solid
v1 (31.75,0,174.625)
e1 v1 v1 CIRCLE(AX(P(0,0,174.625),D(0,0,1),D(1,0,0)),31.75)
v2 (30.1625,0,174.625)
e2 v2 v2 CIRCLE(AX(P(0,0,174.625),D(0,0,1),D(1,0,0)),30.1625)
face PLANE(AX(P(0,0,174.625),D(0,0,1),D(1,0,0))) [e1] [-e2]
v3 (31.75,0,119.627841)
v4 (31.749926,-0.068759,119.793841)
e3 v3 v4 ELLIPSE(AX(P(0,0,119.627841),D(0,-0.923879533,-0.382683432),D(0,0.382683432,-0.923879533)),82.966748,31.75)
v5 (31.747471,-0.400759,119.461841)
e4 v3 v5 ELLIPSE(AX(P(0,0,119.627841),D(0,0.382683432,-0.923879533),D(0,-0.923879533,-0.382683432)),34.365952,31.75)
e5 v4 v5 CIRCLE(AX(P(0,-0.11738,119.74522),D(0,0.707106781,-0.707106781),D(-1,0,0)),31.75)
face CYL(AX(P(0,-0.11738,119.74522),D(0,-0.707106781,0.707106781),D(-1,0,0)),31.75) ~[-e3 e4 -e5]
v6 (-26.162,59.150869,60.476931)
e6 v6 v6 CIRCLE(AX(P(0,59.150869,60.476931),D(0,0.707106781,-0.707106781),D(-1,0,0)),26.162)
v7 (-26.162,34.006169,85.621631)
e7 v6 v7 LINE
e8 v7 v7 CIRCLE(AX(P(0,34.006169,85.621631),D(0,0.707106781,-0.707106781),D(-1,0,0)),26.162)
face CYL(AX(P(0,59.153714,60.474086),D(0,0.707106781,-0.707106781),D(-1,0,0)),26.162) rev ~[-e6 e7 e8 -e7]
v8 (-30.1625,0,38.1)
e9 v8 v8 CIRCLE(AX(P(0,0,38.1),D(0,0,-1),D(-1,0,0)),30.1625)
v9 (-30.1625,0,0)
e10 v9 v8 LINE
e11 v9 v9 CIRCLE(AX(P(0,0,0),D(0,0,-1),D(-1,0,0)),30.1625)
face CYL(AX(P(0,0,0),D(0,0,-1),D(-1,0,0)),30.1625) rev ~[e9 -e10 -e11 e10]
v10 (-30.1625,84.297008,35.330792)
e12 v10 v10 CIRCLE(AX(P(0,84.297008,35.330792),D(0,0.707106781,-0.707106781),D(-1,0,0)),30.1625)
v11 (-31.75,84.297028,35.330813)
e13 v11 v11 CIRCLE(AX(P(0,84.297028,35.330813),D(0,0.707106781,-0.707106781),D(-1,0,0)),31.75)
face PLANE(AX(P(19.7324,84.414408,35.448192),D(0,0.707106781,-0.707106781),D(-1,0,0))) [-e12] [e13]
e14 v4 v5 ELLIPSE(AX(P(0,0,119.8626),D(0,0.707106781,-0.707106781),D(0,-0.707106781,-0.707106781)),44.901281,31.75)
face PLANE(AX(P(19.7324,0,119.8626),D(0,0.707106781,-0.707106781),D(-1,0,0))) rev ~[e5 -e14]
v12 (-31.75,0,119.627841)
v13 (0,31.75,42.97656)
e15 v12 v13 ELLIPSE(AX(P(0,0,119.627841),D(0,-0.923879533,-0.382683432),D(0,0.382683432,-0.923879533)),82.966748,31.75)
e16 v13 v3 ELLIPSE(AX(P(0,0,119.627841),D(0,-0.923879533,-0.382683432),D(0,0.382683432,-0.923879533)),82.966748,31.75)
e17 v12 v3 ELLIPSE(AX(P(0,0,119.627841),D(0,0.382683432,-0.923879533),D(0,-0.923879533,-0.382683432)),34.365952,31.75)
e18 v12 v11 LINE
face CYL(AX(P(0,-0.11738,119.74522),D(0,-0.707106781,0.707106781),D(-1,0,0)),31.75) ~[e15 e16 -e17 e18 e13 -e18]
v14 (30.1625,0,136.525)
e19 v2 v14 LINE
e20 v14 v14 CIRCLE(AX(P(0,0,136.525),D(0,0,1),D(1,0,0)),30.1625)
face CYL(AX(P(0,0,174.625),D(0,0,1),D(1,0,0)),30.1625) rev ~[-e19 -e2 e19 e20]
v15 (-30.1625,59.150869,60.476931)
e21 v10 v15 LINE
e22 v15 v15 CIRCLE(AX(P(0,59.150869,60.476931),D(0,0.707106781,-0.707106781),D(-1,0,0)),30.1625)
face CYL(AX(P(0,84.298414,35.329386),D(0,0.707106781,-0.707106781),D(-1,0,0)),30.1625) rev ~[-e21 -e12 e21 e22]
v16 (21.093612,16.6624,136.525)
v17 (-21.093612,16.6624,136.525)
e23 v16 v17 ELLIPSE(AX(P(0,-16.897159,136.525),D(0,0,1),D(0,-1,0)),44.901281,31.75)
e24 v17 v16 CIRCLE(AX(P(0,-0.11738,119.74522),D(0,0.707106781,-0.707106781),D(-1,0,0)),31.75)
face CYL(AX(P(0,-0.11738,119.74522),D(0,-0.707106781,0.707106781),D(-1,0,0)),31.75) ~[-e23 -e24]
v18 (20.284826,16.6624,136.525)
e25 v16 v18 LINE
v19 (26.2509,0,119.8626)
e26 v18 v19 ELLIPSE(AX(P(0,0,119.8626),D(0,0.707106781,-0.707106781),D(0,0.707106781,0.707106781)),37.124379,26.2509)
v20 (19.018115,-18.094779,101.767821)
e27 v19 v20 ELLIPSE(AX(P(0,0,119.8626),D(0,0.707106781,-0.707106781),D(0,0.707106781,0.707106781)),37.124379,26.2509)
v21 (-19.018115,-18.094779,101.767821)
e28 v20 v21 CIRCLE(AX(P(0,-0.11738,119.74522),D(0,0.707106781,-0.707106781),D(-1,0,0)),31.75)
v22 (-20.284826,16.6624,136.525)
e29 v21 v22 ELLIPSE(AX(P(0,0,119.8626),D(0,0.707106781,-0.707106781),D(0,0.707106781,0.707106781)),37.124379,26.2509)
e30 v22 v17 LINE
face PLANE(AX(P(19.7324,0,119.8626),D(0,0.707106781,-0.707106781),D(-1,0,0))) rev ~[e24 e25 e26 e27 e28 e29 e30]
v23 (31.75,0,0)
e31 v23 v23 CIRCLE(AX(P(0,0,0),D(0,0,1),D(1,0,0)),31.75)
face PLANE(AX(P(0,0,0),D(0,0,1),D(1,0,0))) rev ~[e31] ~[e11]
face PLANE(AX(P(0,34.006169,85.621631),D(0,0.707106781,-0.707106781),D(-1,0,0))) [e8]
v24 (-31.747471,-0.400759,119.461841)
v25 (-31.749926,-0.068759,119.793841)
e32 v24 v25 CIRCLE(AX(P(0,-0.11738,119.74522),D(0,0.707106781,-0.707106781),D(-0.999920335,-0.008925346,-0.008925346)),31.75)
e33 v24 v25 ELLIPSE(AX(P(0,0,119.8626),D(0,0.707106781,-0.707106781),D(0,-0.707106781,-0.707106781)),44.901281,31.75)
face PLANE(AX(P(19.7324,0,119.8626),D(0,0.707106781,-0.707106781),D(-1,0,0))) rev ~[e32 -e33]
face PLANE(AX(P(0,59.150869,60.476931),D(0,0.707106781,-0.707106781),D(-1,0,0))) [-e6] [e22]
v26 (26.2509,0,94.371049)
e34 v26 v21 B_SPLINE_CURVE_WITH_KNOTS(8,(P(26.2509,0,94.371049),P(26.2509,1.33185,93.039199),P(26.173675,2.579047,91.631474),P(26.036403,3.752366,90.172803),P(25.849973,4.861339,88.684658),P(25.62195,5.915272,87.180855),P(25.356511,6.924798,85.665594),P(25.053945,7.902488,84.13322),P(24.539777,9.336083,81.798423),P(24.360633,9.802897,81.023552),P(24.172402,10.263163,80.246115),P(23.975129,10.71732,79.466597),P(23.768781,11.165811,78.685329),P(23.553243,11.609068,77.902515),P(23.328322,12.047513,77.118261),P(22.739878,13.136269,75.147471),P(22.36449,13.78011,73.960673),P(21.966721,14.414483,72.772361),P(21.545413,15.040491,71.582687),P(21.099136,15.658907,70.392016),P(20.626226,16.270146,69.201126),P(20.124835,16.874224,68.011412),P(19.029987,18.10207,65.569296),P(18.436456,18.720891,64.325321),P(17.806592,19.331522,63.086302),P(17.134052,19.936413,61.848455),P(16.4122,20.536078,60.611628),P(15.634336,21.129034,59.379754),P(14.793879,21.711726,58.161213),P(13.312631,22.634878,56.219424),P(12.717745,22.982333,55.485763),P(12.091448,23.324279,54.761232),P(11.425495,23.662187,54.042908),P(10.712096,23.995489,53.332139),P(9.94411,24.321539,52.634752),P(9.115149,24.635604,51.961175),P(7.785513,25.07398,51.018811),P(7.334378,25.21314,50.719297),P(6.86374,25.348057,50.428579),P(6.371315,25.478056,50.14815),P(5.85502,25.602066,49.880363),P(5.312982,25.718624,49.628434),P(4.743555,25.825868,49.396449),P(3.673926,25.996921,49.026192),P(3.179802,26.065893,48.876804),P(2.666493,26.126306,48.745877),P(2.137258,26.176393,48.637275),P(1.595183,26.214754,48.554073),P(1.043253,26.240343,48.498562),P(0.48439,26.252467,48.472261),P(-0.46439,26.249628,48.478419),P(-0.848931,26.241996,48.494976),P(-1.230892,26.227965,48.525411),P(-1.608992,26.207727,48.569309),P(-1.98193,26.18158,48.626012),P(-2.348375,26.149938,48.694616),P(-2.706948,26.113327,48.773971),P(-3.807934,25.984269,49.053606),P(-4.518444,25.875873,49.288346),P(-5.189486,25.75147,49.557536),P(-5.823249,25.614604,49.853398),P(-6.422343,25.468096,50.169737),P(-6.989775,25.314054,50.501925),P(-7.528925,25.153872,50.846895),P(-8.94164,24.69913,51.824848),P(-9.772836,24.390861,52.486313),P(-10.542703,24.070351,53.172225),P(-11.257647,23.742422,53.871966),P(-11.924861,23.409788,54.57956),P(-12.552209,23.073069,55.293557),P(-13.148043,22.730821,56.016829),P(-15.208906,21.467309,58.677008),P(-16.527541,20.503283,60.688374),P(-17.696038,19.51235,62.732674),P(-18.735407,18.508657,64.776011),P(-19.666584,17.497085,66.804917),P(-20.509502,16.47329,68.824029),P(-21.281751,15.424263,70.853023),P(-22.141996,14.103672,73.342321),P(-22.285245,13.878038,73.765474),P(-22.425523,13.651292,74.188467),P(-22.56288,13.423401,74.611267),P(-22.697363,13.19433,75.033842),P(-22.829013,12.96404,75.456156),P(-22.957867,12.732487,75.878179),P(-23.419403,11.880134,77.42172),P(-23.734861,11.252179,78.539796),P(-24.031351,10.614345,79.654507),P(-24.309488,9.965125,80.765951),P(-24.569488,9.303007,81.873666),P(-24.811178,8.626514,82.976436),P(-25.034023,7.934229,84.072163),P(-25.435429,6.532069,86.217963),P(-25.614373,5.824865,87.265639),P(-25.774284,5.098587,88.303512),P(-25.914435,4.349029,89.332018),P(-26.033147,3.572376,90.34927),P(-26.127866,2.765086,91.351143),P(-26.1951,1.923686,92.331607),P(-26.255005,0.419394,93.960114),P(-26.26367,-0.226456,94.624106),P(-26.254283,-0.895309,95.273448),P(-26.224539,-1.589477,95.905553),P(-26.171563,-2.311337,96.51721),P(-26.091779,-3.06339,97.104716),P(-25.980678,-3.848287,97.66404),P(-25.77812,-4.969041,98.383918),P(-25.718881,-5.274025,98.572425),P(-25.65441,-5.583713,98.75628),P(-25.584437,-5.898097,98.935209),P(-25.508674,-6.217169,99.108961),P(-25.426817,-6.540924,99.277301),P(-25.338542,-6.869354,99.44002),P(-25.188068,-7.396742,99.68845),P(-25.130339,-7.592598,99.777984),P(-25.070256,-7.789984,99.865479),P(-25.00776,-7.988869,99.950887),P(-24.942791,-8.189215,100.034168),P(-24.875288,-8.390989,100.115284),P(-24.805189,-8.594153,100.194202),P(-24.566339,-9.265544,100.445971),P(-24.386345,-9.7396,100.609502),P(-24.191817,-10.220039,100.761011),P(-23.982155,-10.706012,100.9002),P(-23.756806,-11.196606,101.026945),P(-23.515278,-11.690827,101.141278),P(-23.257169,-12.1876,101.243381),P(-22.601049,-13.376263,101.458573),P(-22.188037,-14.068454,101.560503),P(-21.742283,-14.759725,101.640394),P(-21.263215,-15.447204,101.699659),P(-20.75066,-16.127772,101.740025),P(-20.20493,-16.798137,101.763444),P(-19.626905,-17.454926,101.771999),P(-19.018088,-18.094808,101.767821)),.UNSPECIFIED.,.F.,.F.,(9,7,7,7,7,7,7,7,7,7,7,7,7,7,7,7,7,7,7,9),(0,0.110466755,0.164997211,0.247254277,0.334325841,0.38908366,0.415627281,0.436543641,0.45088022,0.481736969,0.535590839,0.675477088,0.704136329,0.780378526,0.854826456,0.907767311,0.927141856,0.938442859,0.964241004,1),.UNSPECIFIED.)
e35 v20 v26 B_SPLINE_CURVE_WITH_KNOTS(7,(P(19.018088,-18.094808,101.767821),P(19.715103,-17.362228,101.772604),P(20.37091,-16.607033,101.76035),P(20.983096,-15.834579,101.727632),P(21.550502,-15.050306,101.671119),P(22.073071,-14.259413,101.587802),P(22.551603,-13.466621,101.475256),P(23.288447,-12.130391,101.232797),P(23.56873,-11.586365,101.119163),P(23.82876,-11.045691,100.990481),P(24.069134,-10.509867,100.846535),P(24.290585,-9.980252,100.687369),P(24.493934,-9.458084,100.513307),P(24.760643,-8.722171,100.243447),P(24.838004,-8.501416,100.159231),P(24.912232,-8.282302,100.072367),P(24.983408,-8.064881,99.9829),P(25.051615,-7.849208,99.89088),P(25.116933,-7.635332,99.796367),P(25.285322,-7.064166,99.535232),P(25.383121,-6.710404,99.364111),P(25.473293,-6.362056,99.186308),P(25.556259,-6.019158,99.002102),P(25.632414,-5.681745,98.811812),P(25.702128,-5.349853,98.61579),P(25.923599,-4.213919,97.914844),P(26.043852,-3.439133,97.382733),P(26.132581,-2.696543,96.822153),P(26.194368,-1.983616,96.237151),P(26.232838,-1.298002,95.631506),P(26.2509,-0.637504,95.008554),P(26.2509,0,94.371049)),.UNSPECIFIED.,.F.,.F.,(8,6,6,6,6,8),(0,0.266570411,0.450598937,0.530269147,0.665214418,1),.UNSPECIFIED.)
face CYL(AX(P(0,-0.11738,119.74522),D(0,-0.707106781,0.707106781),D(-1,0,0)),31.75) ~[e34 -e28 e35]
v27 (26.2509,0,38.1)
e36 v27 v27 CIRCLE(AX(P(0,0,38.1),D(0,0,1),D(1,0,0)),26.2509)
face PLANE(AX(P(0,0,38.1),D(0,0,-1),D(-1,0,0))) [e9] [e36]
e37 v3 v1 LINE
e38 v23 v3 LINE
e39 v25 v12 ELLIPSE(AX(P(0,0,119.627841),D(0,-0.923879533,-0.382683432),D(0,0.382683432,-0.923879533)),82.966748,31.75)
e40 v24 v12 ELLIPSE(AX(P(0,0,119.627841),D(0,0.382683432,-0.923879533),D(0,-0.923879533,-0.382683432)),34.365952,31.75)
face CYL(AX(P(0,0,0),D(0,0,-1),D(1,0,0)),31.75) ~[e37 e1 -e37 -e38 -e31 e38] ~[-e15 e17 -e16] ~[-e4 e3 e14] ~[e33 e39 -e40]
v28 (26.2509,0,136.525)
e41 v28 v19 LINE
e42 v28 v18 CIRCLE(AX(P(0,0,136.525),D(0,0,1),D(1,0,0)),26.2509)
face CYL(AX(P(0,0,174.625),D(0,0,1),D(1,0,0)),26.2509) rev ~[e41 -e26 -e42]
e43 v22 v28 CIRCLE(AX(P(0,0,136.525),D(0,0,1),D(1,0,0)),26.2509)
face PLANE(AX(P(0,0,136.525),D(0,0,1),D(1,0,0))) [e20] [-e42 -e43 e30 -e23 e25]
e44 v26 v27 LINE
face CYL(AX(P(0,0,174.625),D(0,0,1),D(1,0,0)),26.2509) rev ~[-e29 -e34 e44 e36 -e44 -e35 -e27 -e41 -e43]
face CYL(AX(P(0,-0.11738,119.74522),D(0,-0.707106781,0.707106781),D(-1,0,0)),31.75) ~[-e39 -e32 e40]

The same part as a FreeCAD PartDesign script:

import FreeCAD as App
import Part
import Sketcher
from FreeCAD import Vector
Q = App.Units.Quantity

doc = App.newDocument("Part")
body = doc.addObject("PartDesign::Body", "Body")

# Sketch on XY plane
sketch1 = doc.addObject("Sketcher::SketchObject", "Sketch")
body.addObject(sketch1)
sketch1.AttachmentSupport = (doc.XY_Plane, [""])
sketch1.MapMode = "FlatFace"
sketch1.addGeometry(Part.Circle(Vector(0, 0, 0), Vector(0, 0, 1), 32), False)
sketch1.addConstraint(Sketcher.Constraint("Coincident", 0, 3, -1, 1))
sketch1.addConstraint(Sketcher.Constraint("Diameter", 0, Q("2.5 in")))
pad1 = doc.addObject("PartDesign::Pad", "Pad")
body.addObject(pad1)
pad1.Profile = sketch1
pad1.Length = Q("6.875 in")

# Sketch on XY plane
sketch2 = doc.addObject("Sketcher::SketchObject", "Sketch001")
body.addObject(sketch2)
sketch2.AttachmentSupport = (doc.XY_Plane, [""])
sketch2.MapMode = "FlatFace"
sketch2.AttachmentOffset = App.Placement(Vector(0, 0, 6.875 * 25.4), App.Rotation())
sketch2.addGeometry(Part.Circle(Vector(0, 0, 0), Vector(0, 0, 1), 26), False)
sketch2.addConstraint(Sketcher.Constraint("Coincident", 0, 3, -1, 1))
sketch2.addConstraint(Sketcher.Constraint("Diameter", 0, Q("2.067 in")))
pocket1 = doc.addObject("PartDesign::Pocket", "Pocket")
body.addObject(pocket1)
pocket1.Profile = sketch2
pocket1.Length = Q("6.875 in")

# Sketch on XY plane
sketch3 = doc.addObject("Sketcher::SketchObject", "Sketch002")
body.addObject(sketch3)
sketch3.AttachmentSupport = (doc.XY_Plane, [""])
sketch3.MapMode = "FlatFace"
sketch3.AttachmentOffset = App.Placement(Vector(0, 0, 6.875 * 25.4), App.Rotation())
sketch3.addGeometry(Part.Circle(Vector(0, 0, 0), Vector(0, 0, 1), 30), False)
sketch3.addGeometry(Part.Circle(Vector(0, 0, 0), Vector(0, 0, 1), 26), False)
sketch3.addConstraint(Sketcher.Constraint("Coincident", 0, 3, -1, 1))
sketch3.addConstraint(Sketcher.Constraint("Coincident", 1, 3, -1, 1))
sketch3.addConstraint(Sketcher.Constraint("Diameter", 0, Q("2.375 in")))
sketch3.addConstraint(Sketcher.Constraint("Diameter", 1, Q("2.067 in")))
pocket2 = doc.addObject("PartDesign::Pocket", "Pocket001")
body.addObject(pocket2)
pocket2.Profile = sketch3
pocket2.Length = Q("1.5 in")

# Sketch on XY plane
sketch4 = doc.addObject("Sketcher::SketchObject", "Sketch003")
body.addObject(sketch4)
sketch4.AttachmentSupport = (doc.XY_Plane, [""])
sketch4.MapMode = "FlatFace"
sketch4.addGeometry(Part.Circle(Vector(0, 0, 0), Vector(0, 0, 1), 30), False)
sketch4.addGeometry(Part.Circle(Vector(0, 0, 0), Vector(0, 0, 1), 26), False)
sketch4.addConstraint(Sketcher.Constraint("Coincident", 0, 3, -1, 1))
sketch4.addConstraint(Sketcher.Constraint("Coincident", 1, 3, -1, 1))
sketch4.addConstraint(Sketcher.Constraint("Diameter", 0, Q("2.375 in")))
sketch4.addConstraint(Sketcher.Constraint("Diameter", 1, Q("2.067 in")))
pocket3 = doc.addObject("PartDesign::Pocket", "Pocket002")
body.addObject(pocket3)
pocket3.Profile = sketch4
pocket3.Length = Q("1.5 in")
pocket3.Reversed = True

# Sketch on an angled plane
sketch5 = doc.addObject("Sketcher::SketchObject", "Sketch004")
body.addObject(sketch5)
sketch5.Placement = App.Placement(Vector(19.7324, 0, 119.8626), App.Rotation(Vector(-1, 0, 0), Vector(0, 0.707106781, 0.707106781), Vector(0, 0.707106781, -0.707106781), "ZXY"))
sketch5.addGeometry(Part.Circle(Vector(20, 0, 0), Vector(0, 0, 1), 32), False)
sketch5.addConstraint(Sketcher.Constraint("Diameter", 0, Q("2.5 in")))
sketch5.addConstraint(Sketcher.Constraint("DistanceX", -1, 1, 0, 3, 19.7324))
sketch5.addConstraint(Sketcher.Constraint("DistanceY", 0, 3, -1, 1, 0.166))
pad2 = doc.addObject("PartDesign::Pad", "Pad001")
body.addObject(pad2)
pad2.Profile = sketch5
pad2.Length = Q("4.7 in")

# Sketch on an angled plane
sketch6 = doc.addObject("Sketcher::SketchObject", "Sketch005")
body.addObject(sketch6)
sketch6.Placement = App.Placement(Vector(0, 84.297, 35.3308), App.Rotation(Vector(-1, 0, 0), Vector(0, 0.707106781, 0.707106781), Vector(0, 0.707106781, -0.707106781), "ZXY"))
sketch6.addGeometry(Part.Circle(Vector(0, 0, 0), Vector(0, 0, 1), 30), False)
sketch6.addConstraint(Sketcher.Constraint("Coincident", 0, 3, -1, 1))
sketch6.addConstraint(Sketcher.Constraint("Diameter", 0, Q("2.375 in")))
pocket4 = doc.addObject("PartDesign::Pocket", "Pocket003")
body.addObject(pocket4)
pocket4.Profile = sketch6
pocket4.Length = Q("1.4 in")

# Sketch on an angled plane
sketch7 = doc.addObject("Sketcher::SketchObject", "Sketch006")
body.addObject(sketch7)
sketch7.Placement = App.Placement(Vector(0, 59.1523, 60.4755), App.Rotation(Vector(-1, 0, 0), Vector(0, 0.707106781, 0.707106781), Vector(0, 0.707106781, -0.707106781), "ZXY"))
sketch7.addGeometry(Part.Circle(Vector(0, 0, 0), Vector(0, 0, 1), 26), False)
sketch7.addConstraint(Sketcher.Constraint("Coincident", 0, 3, -1, 1))
sketch7.addConstraint(Sketcher.Constraint("Diameter", 0, Q("2.06 in")))
pocket5 = doc.addObject("PartDesign::Pocket", "Pocket004")
body.addObject(pocket5)
pocket5.Profile = sketch7
pocket5.Length = Q("1.4 in")

doc.recompute()
